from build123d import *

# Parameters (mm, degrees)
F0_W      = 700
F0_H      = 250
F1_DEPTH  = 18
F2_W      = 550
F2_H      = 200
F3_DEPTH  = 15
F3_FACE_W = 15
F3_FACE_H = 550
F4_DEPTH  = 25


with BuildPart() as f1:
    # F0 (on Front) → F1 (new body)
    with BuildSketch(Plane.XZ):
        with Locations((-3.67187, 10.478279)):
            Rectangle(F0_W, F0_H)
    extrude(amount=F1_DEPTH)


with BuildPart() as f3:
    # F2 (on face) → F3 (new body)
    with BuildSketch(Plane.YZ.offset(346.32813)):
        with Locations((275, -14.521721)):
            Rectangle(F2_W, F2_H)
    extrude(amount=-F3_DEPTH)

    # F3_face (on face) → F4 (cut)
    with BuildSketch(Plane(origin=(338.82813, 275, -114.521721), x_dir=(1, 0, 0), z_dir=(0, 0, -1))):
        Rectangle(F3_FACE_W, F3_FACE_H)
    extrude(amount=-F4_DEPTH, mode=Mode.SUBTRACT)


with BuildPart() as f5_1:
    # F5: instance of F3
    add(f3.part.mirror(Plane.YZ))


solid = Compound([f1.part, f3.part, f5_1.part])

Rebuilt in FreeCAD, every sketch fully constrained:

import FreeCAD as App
import Part
import Sketcher
from FreeCAD import Vector
Q = App.Units.Quantity

doc = App.newDocument("Part")
body = doc.addObject("PartDesign::Body", "Body")

# Sketch on XZ plane
sketch1 = body.newObject("Sketcher::SketchObject", "Sketch")
sketch1.AttachmentSupport = (doc.getObject("XZ_Plane"), [""])
sketch1.MapMode = "FlatFace"
sketch1.addGeometry([
    Part.LineSegment(Vector(-354, 135, 0), Vector(-354, -115, 0)),
    Part.LineSegment(Vector(-354, -115, 0), Vector(346, -115, 0)),
    Part.LineSegment(Vector(346, -115, 0), Vector(346, 135, 0)),
    Part.LineSegment(Vector(346, 135, 0), Vector(-354, 135, 0)),
], False)
sketch1.addConstraint([
    Sketcher.Constraint("Coincident", 0, 2, 1, 1),
    Sketcher.Constraint("Coincident", 1, 2, 2, 1),
    Sketcher.Constraint("Coincident", 2, 2, 3, 1),
    Sketcher.Constraint("Coincident", 3, 2, 0, 1),
    Sketcher.Constraint("Vertical", 0),
    Sketcher.Constraint("Horizontal", 1),
    Sketcher.Constraint("Vertical", 2),
    Sketcher.Constraint("Horizontal", 3),
    Sketcher.Constraint("DistanceX", 1, 1, 1, 2, Q("700 mm")),
    Sketcher.Constraint("DistanceY", 0, 2, 0, 1, Q("250 mm")),
    Sketcher.Constraint("DistanceX", 0, 2, -1, 1, Q("353.67187 mm")),
    Sketcher.Constraint("DistanceY", 0, 2, -1, 1, Q("114.521721 mm")),
])
pad1 = body.newObject("PartDesign::Pad", "Pad")
pad1.Profile = sketch1
pad1.Length = 18
body2 = doc.addObject("PartDesign::Body", "Body001")

# Sketch on YZ plane
sketch2 = body2.newObject("Sketcher::SketchObject", "Sketch001")
sketch2.AttachmentSupport = (doc.getObject("YZ_Plane001"), [""])
sketch2.MapMode = "FlatFace"
sketch2.AttachmentOffset = App.Placement(Vector(0, 0, 346.32813), App.Rotation())
sketch2.addGeometry([
    Part.LineSegment(Vector(0, 85, 0), Vector(0, -115, 0)),
    Part.LineSegment(Vector(0, -115, 0), Vector(550, -115, 0)),
    Part.LineSegment(Vector(550, -115, 0), Vector(550, 85, 0)),
    Part.LineSegment(Vector(550, 85, 0), Vector(0, 85, 0)),
], False)
sketch2.addConstraint([
    Sketcher.Constraint("Coincident", 0, 2, 1, 1),
    Sketcher.Constraint("Coincident", 1, 2, 2, 1),
    Sketcher.Constraint("Coincident", 2, 2, 3, 1),
    Sketcher.Constraint("Coincident", 3, 2, 0, 1),
    Sketcher.Constraint("Vertical", 0),
    Sketcher.Constraint("Horizontal", 1),
    Sketcher.Constraint("Vertical", 2),
    Sketcher.Constraint("Horizontal", 3),
    Sketcher.Constraint("PointOnObject", 0, 2, -2),
    Sketcher.Constraint("DistanceX", 1, 1, 1, 2, Q("550 mm")),
    Sketcher.Constraint("DistanceY", 0, 2, 0, 1, Q("200 mm")),
    Sketcher.Constraint("DistanceY", 0, 2, -1, 1, Q("114.521721 mm")),
])
pad2 = body2.newObject("PartDesign::Pad", "Pad001")
pad2.Profile = sketch2
pad2.Length = 15
pad2.Reversed = True

# Sketch on XY plane
sketch3 = body2.newObject("Sketcher::SketchObject", "Sketch002")
sketch3.AttachmentSupport = (doc.getObject("XY_Plane001"), [""])
sketch3.MapMode = "FlatFace"
sketch3.AttachmentOffset = App.Placement(Vector(0, 0, -114.521721), App.Rotation())
sketch3.addGeometry([
    Part.LineSegment(Vector(331, 0, 0), Vector(331, 550, 0)),
    Part.LineSegment(Vector(331, 550, 0), Vector(346, 550, 0)),
    Part.LineSegment(Vector(346, 550, 0), Vector(346, 0, 0)),
    Part.LineSegment(Vector(346, 0, 0), Vector(331, 0, 0)),
], False)
sketch3.addConstraint([
    Sketcher.Constraint("Coincident", 0, 2, 1, 1),
    Sketcher.Constraint("Coincident", 1, 2, 2, 1),
    Sketcher.Constraint("Coincident", 2, 2, 3, 1),
    Sketcher.Constraint("Coincident", 3, 2, 0, 1),
    Sketcher.Constraint("Vertical", 0),
    Sketcher.Constraint("Horizontal", 1),
    Sketcher.Constraint("Vertical", 2),
    Sketcher.Constraint("Horizontal", 3),
    Sketcher.Constraint("PointOnObject", 2, 2, -1),
    Sketcher.Constraint("DistanceX", 1, 1, 1, 2, Q("15 mm")),
    Sketcher.Constraint("DistanceY", 0, 1, 0, 2, Q("550 mm")),
    Sketcher.Constraint("DistanceX", -1, 1, 0, 2, Q("331.32813 mm")),
])
pocket1 = body2.newObject("PartDesign::Pocket", "Pocket")
pocket1.Profile = sketch3
pocket1.Length = 25
pocket1.Reversed = True
body3 = doc.addObject("PartDesign::Body", "Body002")
doc.recompute()

mirroring = doc.addObject("Part::Mirroring", "Mirroring")
mirroring.Source = body2
mirroring.Base = Vector(0, 0, 0)
mirroring.Normal = Vector(1, 0, 0)
body3.BaseFeature = mirroring
doc.recompute()
mirroring.Visibility = False

doc.recompute()
